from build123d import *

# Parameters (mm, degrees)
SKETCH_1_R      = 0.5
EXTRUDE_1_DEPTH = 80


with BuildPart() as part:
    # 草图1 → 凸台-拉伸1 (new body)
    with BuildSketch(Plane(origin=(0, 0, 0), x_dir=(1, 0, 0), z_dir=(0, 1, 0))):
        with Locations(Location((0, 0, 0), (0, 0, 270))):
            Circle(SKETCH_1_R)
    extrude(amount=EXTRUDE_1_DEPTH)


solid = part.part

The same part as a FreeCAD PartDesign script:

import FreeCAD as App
import Part
import Sketcher
from FreeCAD import Vector
Q = App.Units.Quantity

doc = App.newDocument("Part")
body = doc.addObject("PartDesign::Body", "Body")

# Sketch on XZ plane
sketch1 = body.newObject("Sketcher::SketchObject", "Sketch")
sketch1.AttachmentSupport = (doc.getObject("XZ_Plane"), [""])
sketch1.MapMode = "FlatFace"
sketch1.addGeometry(Part.Circle(Vector(0, 0, 0), Vector(0, 0, 1), 0.5), False)
sketch1.addConstraint(Sketcher.Constraint("Coincident", 0, 3, -1, 1))
sketch1.addConstraint(Sketcher.Constraint("Diameter", 0, Q("1 mm")))
pad1 = body.newObject("PartDesign::Pad", "Pad")
pad1.Profile = sketch1
pad1.Length = 80
pad1.Reversed = True

doc.recompute()
